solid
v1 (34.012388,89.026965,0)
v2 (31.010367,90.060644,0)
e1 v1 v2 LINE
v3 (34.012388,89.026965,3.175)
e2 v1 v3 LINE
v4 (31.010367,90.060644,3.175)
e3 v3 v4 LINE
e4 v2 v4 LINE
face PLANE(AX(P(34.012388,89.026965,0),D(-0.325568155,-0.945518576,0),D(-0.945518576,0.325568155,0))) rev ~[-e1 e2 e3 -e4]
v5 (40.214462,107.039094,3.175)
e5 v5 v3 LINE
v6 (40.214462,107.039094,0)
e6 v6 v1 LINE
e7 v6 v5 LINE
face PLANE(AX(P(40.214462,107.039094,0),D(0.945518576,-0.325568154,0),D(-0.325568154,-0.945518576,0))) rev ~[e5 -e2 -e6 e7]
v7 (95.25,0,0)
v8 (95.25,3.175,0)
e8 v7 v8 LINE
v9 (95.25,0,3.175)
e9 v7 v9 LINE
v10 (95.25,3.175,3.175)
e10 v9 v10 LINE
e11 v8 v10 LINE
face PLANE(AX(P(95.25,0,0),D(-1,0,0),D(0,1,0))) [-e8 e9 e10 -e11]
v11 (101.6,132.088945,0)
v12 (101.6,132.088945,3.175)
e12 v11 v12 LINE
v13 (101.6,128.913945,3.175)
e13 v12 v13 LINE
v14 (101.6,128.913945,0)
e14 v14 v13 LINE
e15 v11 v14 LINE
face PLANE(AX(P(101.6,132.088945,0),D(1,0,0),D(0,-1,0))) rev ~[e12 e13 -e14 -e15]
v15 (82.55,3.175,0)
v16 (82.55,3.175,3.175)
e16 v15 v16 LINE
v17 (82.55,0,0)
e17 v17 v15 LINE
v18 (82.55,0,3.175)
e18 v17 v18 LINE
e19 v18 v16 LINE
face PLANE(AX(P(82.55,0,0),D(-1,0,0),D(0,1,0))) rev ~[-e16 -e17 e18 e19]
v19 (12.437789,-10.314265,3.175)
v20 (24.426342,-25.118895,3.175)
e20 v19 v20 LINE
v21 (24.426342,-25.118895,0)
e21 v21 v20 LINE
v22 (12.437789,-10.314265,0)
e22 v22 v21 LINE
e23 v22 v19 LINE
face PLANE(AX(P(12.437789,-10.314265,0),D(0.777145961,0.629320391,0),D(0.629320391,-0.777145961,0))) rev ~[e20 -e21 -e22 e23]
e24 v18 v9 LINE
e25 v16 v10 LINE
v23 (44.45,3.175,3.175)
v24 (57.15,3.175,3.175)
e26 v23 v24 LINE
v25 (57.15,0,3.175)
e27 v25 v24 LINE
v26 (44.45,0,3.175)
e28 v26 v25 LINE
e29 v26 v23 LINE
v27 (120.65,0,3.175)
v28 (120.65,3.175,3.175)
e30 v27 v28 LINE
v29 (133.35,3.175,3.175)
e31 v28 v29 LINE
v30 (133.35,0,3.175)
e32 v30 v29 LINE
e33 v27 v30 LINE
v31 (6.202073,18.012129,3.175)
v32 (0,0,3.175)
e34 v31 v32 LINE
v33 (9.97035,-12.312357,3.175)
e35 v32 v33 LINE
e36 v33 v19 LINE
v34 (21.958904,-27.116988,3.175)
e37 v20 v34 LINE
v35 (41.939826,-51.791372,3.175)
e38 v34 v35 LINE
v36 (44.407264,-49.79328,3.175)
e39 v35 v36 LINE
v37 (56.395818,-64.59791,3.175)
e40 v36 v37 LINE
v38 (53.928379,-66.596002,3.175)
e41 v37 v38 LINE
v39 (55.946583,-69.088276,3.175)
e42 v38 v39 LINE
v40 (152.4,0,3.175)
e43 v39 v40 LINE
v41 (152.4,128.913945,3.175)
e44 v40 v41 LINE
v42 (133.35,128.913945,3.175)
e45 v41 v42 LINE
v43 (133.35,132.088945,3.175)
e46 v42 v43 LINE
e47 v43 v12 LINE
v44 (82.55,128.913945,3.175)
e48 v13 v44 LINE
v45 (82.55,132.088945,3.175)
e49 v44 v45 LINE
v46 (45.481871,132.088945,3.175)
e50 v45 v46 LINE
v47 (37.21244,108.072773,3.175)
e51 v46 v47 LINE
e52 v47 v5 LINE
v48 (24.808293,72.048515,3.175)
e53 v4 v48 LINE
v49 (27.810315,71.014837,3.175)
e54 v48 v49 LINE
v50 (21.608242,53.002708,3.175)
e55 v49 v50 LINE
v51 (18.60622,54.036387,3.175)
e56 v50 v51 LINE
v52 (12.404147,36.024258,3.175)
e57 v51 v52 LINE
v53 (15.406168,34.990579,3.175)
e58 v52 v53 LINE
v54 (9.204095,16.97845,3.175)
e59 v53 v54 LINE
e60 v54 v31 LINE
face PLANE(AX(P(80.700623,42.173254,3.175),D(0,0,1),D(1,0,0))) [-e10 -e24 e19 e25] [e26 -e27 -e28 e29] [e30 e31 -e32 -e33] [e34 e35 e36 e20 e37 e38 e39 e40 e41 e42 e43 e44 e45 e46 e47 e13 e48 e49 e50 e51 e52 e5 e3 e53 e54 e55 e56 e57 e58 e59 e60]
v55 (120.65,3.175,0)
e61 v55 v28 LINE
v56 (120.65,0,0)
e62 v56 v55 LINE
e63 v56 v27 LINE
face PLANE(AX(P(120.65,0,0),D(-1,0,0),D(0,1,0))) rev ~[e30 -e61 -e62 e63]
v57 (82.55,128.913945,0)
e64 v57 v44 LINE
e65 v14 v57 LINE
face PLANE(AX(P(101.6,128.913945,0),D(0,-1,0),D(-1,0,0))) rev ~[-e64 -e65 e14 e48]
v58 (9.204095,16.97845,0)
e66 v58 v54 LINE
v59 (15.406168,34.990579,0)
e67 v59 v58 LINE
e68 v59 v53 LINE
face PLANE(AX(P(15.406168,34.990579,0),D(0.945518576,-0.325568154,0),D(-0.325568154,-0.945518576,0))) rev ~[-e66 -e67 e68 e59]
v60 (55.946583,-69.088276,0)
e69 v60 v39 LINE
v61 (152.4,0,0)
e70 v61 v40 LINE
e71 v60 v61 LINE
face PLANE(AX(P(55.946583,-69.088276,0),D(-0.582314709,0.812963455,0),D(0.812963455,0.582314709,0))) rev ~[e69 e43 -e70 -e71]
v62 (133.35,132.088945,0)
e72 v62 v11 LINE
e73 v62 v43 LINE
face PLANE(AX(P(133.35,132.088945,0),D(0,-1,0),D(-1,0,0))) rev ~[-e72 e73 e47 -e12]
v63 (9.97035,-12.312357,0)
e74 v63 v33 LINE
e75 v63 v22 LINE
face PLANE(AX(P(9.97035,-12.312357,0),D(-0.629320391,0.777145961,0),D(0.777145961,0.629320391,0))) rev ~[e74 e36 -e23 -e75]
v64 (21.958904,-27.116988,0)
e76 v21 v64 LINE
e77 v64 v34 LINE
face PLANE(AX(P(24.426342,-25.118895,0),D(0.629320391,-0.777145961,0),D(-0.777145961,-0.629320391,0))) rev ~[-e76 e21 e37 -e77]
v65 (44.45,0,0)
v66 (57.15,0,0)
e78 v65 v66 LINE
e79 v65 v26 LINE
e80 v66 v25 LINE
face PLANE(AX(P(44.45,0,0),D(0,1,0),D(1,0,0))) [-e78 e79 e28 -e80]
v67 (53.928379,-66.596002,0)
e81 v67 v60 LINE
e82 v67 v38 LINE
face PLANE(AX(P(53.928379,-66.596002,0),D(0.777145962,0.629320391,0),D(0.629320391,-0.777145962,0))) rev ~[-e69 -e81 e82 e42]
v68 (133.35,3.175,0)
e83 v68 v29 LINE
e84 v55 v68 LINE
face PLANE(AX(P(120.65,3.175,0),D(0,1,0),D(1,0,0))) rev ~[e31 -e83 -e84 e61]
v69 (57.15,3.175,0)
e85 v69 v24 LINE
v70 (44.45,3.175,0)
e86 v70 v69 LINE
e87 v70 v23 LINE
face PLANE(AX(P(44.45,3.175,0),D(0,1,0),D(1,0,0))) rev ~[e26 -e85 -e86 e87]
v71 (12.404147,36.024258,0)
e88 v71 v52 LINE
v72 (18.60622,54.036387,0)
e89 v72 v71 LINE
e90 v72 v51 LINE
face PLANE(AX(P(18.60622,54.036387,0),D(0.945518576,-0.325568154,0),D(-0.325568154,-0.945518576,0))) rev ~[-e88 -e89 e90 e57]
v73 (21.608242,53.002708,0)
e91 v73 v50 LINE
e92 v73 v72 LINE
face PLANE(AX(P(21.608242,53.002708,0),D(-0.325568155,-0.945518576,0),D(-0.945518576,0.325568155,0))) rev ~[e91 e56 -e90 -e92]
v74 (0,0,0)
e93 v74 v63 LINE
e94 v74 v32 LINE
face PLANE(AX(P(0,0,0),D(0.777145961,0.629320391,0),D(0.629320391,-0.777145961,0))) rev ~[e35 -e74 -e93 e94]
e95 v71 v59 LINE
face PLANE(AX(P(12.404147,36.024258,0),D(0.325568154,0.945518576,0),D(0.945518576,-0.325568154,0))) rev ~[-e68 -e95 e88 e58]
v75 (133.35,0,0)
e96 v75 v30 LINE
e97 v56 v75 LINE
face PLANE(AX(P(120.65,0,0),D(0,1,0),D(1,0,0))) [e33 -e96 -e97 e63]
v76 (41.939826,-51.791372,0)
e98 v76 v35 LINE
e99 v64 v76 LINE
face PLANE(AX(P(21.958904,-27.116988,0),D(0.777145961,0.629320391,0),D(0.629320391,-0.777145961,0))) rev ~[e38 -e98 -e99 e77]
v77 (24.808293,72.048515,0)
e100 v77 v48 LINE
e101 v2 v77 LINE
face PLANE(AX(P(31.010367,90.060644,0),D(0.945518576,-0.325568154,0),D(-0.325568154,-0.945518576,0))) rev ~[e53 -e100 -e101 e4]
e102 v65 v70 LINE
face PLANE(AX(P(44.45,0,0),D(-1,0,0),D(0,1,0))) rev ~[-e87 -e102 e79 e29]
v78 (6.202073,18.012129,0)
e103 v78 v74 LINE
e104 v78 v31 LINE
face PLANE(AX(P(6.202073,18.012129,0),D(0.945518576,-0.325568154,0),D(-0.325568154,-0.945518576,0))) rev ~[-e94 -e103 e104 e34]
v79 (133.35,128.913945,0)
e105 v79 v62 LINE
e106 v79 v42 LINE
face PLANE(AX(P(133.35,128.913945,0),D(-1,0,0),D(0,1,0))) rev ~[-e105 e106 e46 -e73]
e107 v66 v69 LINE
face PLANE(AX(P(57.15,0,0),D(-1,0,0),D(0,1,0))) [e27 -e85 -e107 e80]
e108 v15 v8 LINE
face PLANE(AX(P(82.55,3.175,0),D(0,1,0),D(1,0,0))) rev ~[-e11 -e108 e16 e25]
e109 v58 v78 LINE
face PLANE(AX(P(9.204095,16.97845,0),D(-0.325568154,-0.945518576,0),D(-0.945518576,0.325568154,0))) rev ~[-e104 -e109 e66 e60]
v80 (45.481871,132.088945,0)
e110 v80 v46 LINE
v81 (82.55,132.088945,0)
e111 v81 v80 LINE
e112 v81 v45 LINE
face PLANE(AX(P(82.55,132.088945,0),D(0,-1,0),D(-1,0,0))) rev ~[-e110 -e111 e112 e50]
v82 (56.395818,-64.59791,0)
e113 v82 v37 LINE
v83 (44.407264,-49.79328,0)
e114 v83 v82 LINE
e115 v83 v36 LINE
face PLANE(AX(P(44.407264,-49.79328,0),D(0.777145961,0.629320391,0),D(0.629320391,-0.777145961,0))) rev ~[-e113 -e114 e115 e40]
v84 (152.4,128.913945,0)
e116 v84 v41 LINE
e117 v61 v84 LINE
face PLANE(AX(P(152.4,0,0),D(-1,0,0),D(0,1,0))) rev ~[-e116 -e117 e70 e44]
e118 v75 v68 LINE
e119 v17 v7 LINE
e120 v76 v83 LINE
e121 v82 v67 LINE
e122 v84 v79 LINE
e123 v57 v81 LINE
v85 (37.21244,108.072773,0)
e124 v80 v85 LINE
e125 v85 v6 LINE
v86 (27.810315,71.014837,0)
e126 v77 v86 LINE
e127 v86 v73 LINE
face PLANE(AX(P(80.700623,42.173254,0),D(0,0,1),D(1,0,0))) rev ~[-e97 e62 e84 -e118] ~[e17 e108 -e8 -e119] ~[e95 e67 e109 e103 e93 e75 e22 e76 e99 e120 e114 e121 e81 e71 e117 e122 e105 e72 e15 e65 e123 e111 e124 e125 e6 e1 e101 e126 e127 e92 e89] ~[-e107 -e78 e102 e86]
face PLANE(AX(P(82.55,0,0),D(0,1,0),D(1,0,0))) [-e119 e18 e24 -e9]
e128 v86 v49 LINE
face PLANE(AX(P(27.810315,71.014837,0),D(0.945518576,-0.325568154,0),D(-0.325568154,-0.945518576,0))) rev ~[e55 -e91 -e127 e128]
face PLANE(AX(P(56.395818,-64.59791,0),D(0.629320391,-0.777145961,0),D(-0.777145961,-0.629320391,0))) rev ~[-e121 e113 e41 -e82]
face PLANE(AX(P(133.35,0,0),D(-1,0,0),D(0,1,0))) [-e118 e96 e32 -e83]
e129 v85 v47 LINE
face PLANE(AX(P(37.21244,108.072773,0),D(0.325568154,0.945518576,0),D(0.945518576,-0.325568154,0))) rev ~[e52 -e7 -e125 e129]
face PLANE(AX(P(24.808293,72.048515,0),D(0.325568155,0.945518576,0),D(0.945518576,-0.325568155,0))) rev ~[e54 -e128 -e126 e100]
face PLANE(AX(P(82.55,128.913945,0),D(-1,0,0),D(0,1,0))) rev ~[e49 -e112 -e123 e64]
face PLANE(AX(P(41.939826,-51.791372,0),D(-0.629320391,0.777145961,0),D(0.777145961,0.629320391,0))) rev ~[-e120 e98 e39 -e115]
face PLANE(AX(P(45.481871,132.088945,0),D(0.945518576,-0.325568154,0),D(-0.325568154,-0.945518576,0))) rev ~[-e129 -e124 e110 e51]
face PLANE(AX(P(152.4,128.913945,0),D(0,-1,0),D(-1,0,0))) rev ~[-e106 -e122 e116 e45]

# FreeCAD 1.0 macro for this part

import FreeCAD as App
import Part
import Sketcher

V = App.Vector
Q = App.Units.Quantity

doc = App.newDocument("Part")
body = doc.addObject("PartDesign::Body", "Body")

# Sketch on XY plane
sketch1 = body.newObject("Sketcher::SketchObject", "Sketch")
sketch1.AttachmentSupport = (doc.getObject("XY_Plane"), [""])
sketch1.MapMode = "FlatFace"
sketch1.addGeometry([
    Part.LineSegment(V(152.4, 0, 0), V(152.4, 128.913945, 0)),  # 0
    Part.LineSegment(V(152.4, 128.913945, 0), V(133.35, 128.913945, 0)),  # 1
    Part.LineSegment(V(133.35, 128.913945, 0), V(133.35, 132.088945, 0)),  # 2
    Part.LineSegment(V(133.35, 132.088945, 0), V(101.6, 132.088945, 0)),  # 3
    Part.LineSegment(V(101.6, 132.088945, 0), V(101.6, 128.913945, 0)),  # 4
    Part.LineSegment(V(101.6, 128.913945, 0), V(82.55, 128.913945, 0)),  # 5
    Part.LineSegment(V(82.55, 128.913945, 0), V(82.55, 132.088945, 0)),  # 6
    Part.LineSegment(V(82.55, 132.088945, 0), V(45.481871, 132.088945, 0)),  # 7
    Part.LineSegment(V(45.481871, 132.088945, 0), V(37.21244, 108.072773, 0)),  # 8
    Part.LineSegment(V(37.21244, 108.072773, 0), V(40.214462, 107.039094, 0)),  # 9
    Part.LineSegment(V(40.214462, 107.039094, 0), V(34.012388, 89.026965, 0)),  # 10
    Part.LineSegment(V(34.012388, 89.026965, 0), V(31.010367, 90.060644, 0)),  # 11
    Part.LineSegment(V(31.010367, 90.060644, 0), V(24.808293, 72.048515, 0)),  # 12
    Part.LineSegment(V(24.808293, 72.048515, 0), V(27.810315, 71.014837, 0)),  # 13
    Part.LineSegment(V(27.810315, 71.014837, 0), V(21.608242, 53.002708, 0)),  # 14
    Part.LineSegment(V(21.608242, 53.002708, 0), V(18.60622, 54.036387, 0)),  # 15
    Part.LineSegment(V(18.60622, 54.036387, 0), V(12.404147, 36.024258, 0)),  # 16
    Part.LineSegment(V(12.404147, 36.024258, 0), V(15.406168, 34.990579, 0)),  # 17
    Part.LineSegment(V(15.406168, 34.990579, 0), V(9.204095, 16.97845, 0)),  # 18
    Part.LineSegment(V(9.204095, 16.97845, 0), V(6.202073, 18.012129, 0)),  # 19
    Part.LineSegment(V(6.202073, 18.012129, 0), V(0, 0, 0)),  # 20
    Part.LineSegment(V(0, 0, 0), V(9.97035, -12.312357, 0)),  # 21
    Part.LineSegment(V(9.97035, -12.312357, 0), V(12.437789, -10.314265, 0)),  # 22
    Part.LineSegment(V(12.437789, -10.314265, 0), V(24.426342, -25.118895, 0)),  # 23
    Part.LineSegment(V(24.426342, -25.118895, 0), V(21.958904, -27.116988, 0)),  # 24
    Part.LineSegment(V(21.958904, -27.116988, 0), V(41.939826, -51.791372, 0)),  # 25
    Part.LineSegment(V(41.939826, -51.791372, 0), V(44.407264, -49.79328, 0)),  # 26
    Part.LineSegment(V(44.407264, -49.79328, 0), V(56.395818, -64.59791, 0)),  # 27
    Part.LineSegment(V(56.395818, -64.59791, 0), V(53.928379, -66.596002, 0)),  # 28
    Part.LineSegment(V(53.928379, -66.596002, 0), V(55.946583, -69.088276, 0)),  # 29
    Part.LineSegment(V(55.946583, -69.088276, 0), V(152.4, 0, 0)),  # 30
    Part.LineSegment(V(57.15, 0, 0), V(44.45, 0, 0)),  # 31
    Part.LineSegment(V(44.45, 0, 0), V(44.45, 3.175, 0)),  # 32
    Part.LineSegment(V(44.45, 3.175, 0), V(57.15, 3.175, 0)),  # 33
    Part.LineSegment(V(57.15, 3.175, 0), V(57.15, 0, 0)),  # 34
    Part.LineSegment(V(95.25, 0, 0), V(82.55, 0, 0)),  # 35
    Part.LineSegment(V(82.55, 0, 0), V(82.55, 3.175, 0)),  # 36
    Part.LineSegment(V(82.55, 3.175, 0), V(95.25, 3.175, 0)),  # 37
    Part.LineSegment(V(95.25, 3.175, 0), V(95.25, 0, 0)),  # 38
    Part.LineSegment(V(133.35, 0, 0), V(120.65, 0, 0)),  # 39
    Part.LineSegment(V(120.65, 0, 0), V(120.65, 3.175, 0)),  # 40
    Part.LineSegment(V(120.65, 3.175, 0), V(133.35, 3.175, 0)),  # 41
    Part.LineSegment(V(133.35, 3.175, 0), V(133.35, 0, 0)),  # 42
], False)
sketch1.addConstraint([
    Sketcher.Constraint("Coincident", 0, 2, 1, 1),
    Sketcher.Constraint("Coincident", 1, 2, 2, 1),
    Sketcher.Constraint("Coincident", 2, 2, 3, 1),
    Sketcher.Constraint("Coincident", 3, 2, 4, 1),
    Sketcher.Constraint("Coincident", 4, 2, 5, 1),
    Sketcher.Constraint("Coincident", 5, 2, 6, 1),
    Sketcher.Constraint("Coincident", 6, 2, 7, 1),
    Sketcher.Constraint("Coincident", 7, 2, 8, 1),
    Sketcher.Constraint("Coincident", 8, 2, 9, 1),
    Sketcher.Constraint("Coincident", 9, 2, 10, 1),
    Sketcher.Constraint("Coincident", 10, 2, 11, 1),
    Sketcher.Constraint("Coincident", 11, 2, 12, 1),
    Sketcher.Constraint("Coincident", 12, 2, 13, 1),
    Sketcher.Constraint("Coincident", 13, 2, 14, 1),
    Sketcher.Constraint("Coincident", 14, 2, 15, 1),
    Sketcher.Constraint("Coincident", 15, 2, 16, 1),
    Sketcher.Constraint("Coincident", 16, 2, 17, 1),
    Sketcher.Constraint("Coincident", 17, 2, 18, 1),
    Sketcher.Constraint("Coincident", 18, 2, 19, 1),
    Sketcher.Constraint("Coincident", 19, 2, 20, 1),
    Sketcher.Constraint("Coincident", 20, 2, 21, 1),
    Sketcher.Constraint("Coincident", 21, 2, 22, 1),
    Sketcher.Constraint("Coincident", 22, 2, 23, 1),
    Sketcher.Constraint("Coincident", 23, 2, 24, 1),
    Sketcher.Constraint("Coincident", 24, 2, 25, 1),
    Sketcher.Constraint("Coincident", 25, 2, 26, 1),
    Sketcher.Constraint("Coincident", 26, 2, 27, 1),
    Sketcher.Constraint("Coincident", 27, 2, 28, 1),
    Sketcher.Constraint("Coincident", 28, 2, 29, 1),
    Sketcher.Constraint("Coincident", 29, 2, 30, 1),
    Sketcher.Constraint("Coincident", 30, 2, 0, 1),
    Sketcher.Constraint("Coincident", 31, 2, 32, 1),
    Sketcher.Constraint("Coincident", 32, 2, 33, 1),
    Sketcher.Constraint("Coincident", 33, 2, 34, 1),
    Sketcher.Constraint("Coincident", 34, 2, 31, 1),
    Sketcher.Constraint("Coincident", 35, 2, 36, 1),
    Sketcher.Constraint("Coincident", 36, 2, 37, 1),
    Sketcher.Constraint("Coincident", 37, 2, 38, 1),
    Sketcher.Constraint("Coincident", 38, 2, 35, 1),
    Sketcher.Constraint("Coincident", 39, 2, 40, 1),
    Sketcher.Constraint("Coincident", 40, 2, 41, 1),
    Sketcher.Constraint("Coincident", 41, 2, 42, 1),
    Sketcher.Constraint("Coincident", 42, 2, 39, 1),
    Sketcher.Constraint("Vertical", 0),
    Sketcher.Constraint("Horizontal", 1),
    Sketcher.Constraint("Vertical", 2),
    Sketcher.Constraint("Horizontal", 3),
    Sketcher.Constraint("Vertical", 4),
    Sketcher.Constraint("Horizontal", 5),
    Sketcher.Constraint("Vertical", 6),
    Sketcher.Constraint("Horizontal", 7),
    Sketcher.Constraint("Horizontal", 31),
    Sketcher.Constraint("Vertical", 32),
    Sketcher.Constraint("Horizontal", 33),
    Sketcher.Constraint("Vertical", 34),
    Sketcher.Constraint("Horizontal", 35),
    Sketcher.Constraint("Vertical", 36),
    Sketcher.Constraint("Horizontal", 37),
    Sketcher.Constraint("Vertical", 38),
    Sketcher.Constraint("Horizontal", 39),
    Sketcher.Constraint("Vertical", 40),
    Sketcher.Constraint("Horizontal", 41),
    Sketcher.Constraint("Vertical", 42),
    Sketcher.Constraint("Coincident", 20, 2, -1, 1),
    Sketcher.Constraint("PointOnObject", 30, 2, -1),
    Sketcher.Constraint("PointOnObject", 31, 2, -1),
    Sketcher.Constraint("PointOnObject", 35, 2, -1),
    Sketcher.Constraint("PointOnObject", 39, 2, -1),
    Sketcher.Constraint("Perpendicular", 8, 9),
    Sketcher.Constraint("Perpendicular", 9, 10),
    Sketcher.Constraint("Perpendicular", 10, 11),
    Sketcher.Constraint("Perpendicular", 11, 12),
    Sketcher.Constraint("Perpendicular", 12, 13),
    Sketcher.Constraint("Perpendicular", 13, 14),
    Sketcher.Constraint("Perpendicular", 14, 15),
    Sketcher.Constraint("Perpendicular", 15, 16),
    Sketcher.Constraint("Perpendicular", 16, 17),
    Sketcher.Constraint("Perpendicular", 17, 18),
    Sketcher.Constraint("Perpendicular", 18, 19),
    Sketcher.Constraint("Perpendicular", 19, 20),
    Sketcher.Constraint("Perpendicular", 21, 22),
    Sketcher.Constraint("Perpendicular", 22, 23),
    Sketcher.Constraint("Perpendicular", 23, 24),
    Sketcher.Constraint("Perpendicular", 24, 25),
    Sketcher.Constraint("Perpendicular", 25, 26),
    Sketcher.Constraint("Perpendicular", 26, 27),
    Sketcher.Constraint("Perpendicular", 27, 28),
    Sketcher.Constraint("Perpendicular", 28, 29),
    Sketcher.Constraint("Horizontal", 1, 2, 4, 2),
    Sketcher.Constraint("Horizontal", 3, 2, 6, 2),
    Sketcher.Constraint("Horizontal", 33, 2, 36, 2),
    Sketcher.Constraint("Horizontal", 37, 2, 40, 2),
    Sketcher.Constraint("Vertical", 6, 2, 35, 2),
    Sketcher.Constraint("Vertical", 2, 2, 41, 2),
    Sketcher.Constraint("Equal", 1, 5),
    Sketcher.Constraint("Equal", 33, 35),
    Sketcher.Constraint("Equal", 37, 39),
    Sketcher.Constraint("Equal", 6, 32),
    Sketcher.Constraint("Equal", 9, 11),
    Sketcher.Constraint("Equal", 10, 12),
    Sketcher.Constraint("Equal", 11, 13),
    Sketcher.Constraint("Equal", 12, 14),
    Sketcher.Constraint("Equal", 13, 15),
    Sketcher.Constraint("Equal", 14, 16),
    Sketcher.Constraint("Equal", 15, 17),
    Sketcher.Constraint("Equal", 16, 18),
    Sketcher.Constraint("Equal", 17, 19),
    Sketcher.Constraint("Equal", 18, 20),
    Sketcher.Constraint("Equal", 19, 22),
    Sketcher.Constraint("Equal", 20, 23),
    Sketcher.Constraint("Equal", 22, 24),
    Sketcher.Constraint("Equal", 24, 26),
    Sketcher.Constraint("Equal", 23, 27),
    Sketcher.Constraint("Equal", 26, 28),
    Sketcher.Constraint("Distance", 8, Q("1 in")),
    Sketcher.Constraint("DistanceX", 31, 2, 31, 1, Q("0.5 in")),
    Sketcher.Constraint("DistanceX", -1, 1, 0, 2, Q("6 in")),
    Sketcher.Constraint("DistanceX", -1, 1, 3, 2, Q("4 in")),
    Sketcher.Constraint("Angle", 8, Q("-109 deg")),
    Sketcher.Constraint("Angle", 21, Q("-51 deg")),
    Sketcher.Constraint("DistanceX", 34, 2, 35, 2, Q("1 in")),
    Sketcher.Constraint("DistanceX", 1, 2, 1, 1, Q("0.75 in")),
    Sketcher.Constraint("Distance", 10, Q("0.75 in")),
    Sketcher.Constraint("Distance", 25, Q("1.25 in")),
    Sketcher.Constraint("DistanceY", 2, 1, 2, 2, Q("0.125 in")),
    Sketcher.Constraint("Distance", 9, Q("0.125 in")),
    Sketcher.Constraint("DistanceX", -1, 1, 21, 2, Q("9.97035 mm")),
    Sketcher.Constraint("DistanceX", 26, 2, 29, 2, Q("11.539318 mm")),
])
pad1 = body.newObject("PartDesign::Pad", "Pad")
pad1.Profile = sketch1
pad1.Length = Q("0.125 in")

doc.recompute()
